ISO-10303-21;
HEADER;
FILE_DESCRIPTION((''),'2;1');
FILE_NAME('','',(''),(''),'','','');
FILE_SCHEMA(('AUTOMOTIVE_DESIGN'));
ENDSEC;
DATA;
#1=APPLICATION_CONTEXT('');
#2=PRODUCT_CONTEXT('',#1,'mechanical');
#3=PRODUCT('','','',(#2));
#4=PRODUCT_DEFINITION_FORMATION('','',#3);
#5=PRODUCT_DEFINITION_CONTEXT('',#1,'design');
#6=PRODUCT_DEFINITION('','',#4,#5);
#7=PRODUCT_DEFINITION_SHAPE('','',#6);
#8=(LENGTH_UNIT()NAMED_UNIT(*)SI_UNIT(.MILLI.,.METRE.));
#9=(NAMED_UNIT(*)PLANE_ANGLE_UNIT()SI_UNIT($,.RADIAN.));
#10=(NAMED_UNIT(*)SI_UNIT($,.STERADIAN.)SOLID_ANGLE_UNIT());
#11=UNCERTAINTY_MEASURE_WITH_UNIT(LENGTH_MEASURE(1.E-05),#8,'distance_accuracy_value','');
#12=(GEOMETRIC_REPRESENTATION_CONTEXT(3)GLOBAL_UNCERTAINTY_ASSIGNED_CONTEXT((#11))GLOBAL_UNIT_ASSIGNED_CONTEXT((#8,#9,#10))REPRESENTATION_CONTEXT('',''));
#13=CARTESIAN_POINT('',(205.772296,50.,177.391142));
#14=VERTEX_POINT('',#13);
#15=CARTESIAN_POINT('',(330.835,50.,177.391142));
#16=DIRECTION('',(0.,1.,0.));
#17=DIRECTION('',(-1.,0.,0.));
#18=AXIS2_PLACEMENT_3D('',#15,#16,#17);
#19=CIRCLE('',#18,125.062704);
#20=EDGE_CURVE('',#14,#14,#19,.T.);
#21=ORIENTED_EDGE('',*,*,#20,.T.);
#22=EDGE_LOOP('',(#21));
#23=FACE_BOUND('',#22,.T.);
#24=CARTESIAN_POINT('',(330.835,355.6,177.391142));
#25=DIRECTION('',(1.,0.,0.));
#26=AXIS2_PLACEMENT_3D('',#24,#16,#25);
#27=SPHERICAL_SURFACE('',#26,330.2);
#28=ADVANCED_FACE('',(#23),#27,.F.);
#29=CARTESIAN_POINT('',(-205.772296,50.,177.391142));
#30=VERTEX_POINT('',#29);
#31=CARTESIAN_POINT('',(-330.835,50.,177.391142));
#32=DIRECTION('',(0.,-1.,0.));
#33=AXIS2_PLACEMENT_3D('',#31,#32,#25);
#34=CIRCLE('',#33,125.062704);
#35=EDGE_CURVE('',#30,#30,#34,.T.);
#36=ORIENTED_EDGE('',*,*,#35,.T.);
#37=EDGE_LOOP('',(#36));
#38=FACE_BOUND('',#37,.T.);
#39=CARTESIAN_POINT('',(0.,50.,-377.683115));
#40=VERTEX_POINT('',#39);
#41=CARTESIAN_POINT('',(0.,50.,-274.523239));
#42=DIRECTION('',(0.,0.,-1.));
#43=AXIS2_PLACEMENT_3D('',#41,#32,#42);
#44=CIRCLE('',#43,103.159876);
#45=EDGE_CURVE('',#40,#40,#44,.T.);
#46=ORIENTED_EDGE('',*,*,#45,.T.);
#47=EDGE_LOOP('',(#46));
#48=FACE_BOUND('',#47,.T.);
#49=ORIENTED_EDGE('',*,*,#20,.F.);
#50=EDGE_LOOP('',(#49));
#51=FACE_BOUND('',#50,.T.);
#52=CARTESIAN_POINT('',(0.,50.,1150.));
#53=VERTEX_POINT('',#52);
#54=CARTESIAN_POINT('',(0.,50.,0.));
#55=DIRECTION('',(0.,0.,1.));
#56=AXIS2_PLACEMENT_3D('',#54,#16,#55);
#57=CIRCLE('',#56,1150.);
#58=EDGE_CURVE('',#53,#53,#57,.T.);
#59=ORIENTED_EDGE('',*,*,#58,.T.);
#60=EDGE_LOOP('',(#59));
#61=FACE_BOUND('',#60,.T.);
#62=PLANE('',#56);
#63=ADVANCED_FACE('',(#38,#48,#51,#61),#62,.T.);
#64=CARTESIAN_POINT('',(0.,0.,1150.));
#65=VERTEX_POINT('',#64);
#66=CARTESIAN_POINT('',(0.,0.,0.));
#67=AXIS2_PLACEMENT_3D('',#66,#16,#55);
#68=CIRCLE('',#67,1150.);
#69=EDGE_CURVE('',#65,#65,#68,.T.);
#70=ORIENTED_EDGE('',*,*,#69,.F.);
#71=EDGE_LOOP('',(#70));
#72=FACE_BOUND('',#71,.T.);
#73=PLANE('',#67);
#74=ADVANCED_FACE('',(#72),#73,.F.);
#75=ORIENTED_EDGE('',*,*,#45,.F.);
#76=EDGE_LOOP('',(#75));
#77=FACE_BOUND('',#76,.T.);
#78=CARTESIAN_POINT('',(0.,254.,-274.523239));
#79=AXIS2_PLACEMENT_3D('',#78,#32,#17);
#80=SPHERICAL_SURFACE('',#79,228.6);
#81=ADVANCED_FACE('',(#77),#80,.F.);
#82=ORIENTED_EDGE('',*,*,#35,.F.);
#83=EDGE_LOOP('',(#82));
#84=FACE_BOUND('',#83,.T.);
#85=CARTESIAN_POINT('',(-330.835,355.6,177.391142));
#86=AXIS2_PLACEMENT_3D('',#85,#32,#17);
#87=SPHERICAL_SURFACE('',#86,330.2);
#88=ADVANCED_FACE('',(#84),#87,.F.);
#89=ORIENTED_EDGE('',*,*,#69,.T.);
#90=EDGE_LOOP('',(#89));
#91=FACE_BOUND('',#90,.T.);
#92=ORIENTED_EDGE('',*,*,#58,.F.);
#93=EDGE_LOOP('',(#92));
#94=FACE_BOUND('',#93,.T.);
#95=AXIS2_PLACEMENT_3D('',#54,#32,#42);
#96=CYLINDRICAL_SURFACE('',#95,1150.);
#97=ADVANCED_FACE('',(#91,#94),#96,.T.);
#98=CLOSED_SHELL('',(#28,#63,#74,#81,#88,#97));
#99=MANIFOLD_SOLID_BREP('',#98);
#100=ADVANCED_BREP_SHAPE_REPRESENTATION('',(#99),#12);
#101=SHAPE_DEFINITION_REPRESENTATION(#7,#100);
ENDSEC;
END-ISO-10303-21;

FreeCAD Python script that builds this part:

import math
import FreeCAD as App
import Part
import Sketcher

V = App.Vector
Q = App.Units.Quantity

doc = App.newDocument("Part")
body = doc.addObject("PartDesign::Body", "Body")

# Sketch on XZ plane
sketch1 = body.newObject("Sketcher::SketchObject", "Sketch")
sketch1.AttachmentSupport = (doc.getObject("XZ_Plane"), [""])
sketch1.MapMode = "FlatFace"
sketch1.addGeometry(Part.Circle(V(0, 0, 0), V(0, 0, 1), 1150), False)
sketch1.addConstraint([
    Sketcher.Constraint("Coincident", 0, 3, -1, 1),
    Sketcher.Constraint("Diameter", 0, Q("2300 mm")),
])
pad1 = body.newObject("PartDesign::Pad", "Pad")
pad1.Profile = sketch1
pad1.Length = 50
pad1.Reversed = True

# Sketch on XY plane
sketch2 = body.newObject("Sketcher::SketchObject", "Sketch001")
sketch2.AttachmentSupport = (doc.getObject("XY_Plane"), [""])
sketch2.MapMode = "FlatFace"
sketch2.AttachmentOffset = App.Placement(V(0, 0, 177.391142), App.Rotation())
sketch2.addGeometry([
    Part.LineSegment(V(455.9, 50, 0), V(457.6, 50, 0)),  # 0
    Part.LineSegment(V(457.6, 50, 0), V(457.6, 50.7, 0)),  # 1
    Part.ArcOfCircle(Part.Circle(V(330.8, 355.6, 0), V(0, 0, 1), 330.2), math.radians(-67.74), math.radians(-67.43)),  # 2
    Part.LineSegment(V(-205.8, 50, 0), V(-330.8, 50, 0)),  # 3
    Part.LineSegment(V(-330.8, 50, 0), V(-330.8, 25.4, 0)),  # 4
    Part.ArcOfCircle(Part.Circle(V(-330.8, 355.6, 0), V(0, 0, 1), 330.2), math.radians(-90), math.radians(-68)),  # 5
], False)
sketch2.addGeometry(Part.LineSegment(V(-330.8, 25.4, 0), V(-330.8, 355.6, 0)), True)  # axis
sketch2.addConstraint([
    Sketcher.Constraint("Coincident", 0, 2, 1, 1),
    Sketcher.Constraint("Coincident", 1, 2, 2, 2),
    Sketcher.Constraint("Coincident", 2, 1, 0, 1),
    Sketcher.Constraint("Coincident", 3, 2, 4, 1),
    Sketcher.Constraint("Coincident", 4, 2, 5, 1),
    Sketcher.Constraint("Coincident", 5, 2, 3, 1),
    Sketcher.Constraint("Horizontal", 0),
    Sketcher.Constraint("Vertical", 1),
    Sketcher.Constraint("Horizontal", 3),
    Sketcher.Constraint("Vertical", 4),
    Sketcher.Constraint("Vertical", 6),
    Sketcher.Constraint("Coincident", 6, 1, 4, 2),
    Sketcher.Constraint("Horizontal", 2, 1, 3, 2),
    Sketcher.Constraint("Horizontal", 2, 3, 6, 2),
    Sketcher.Constraint("Vertical", 5, 3, 3, 2),
    Sketcher.Constraint("Radius", 5, Q("330.2 mm")),
    Sketcher.Constraint("DistanceY", 4, 2, 4, 1, Q("24.6 mm")),
    Sketcher.Constraint("DistanceY", -1, 1, 0, 2, Q("50 mm")),
    Sketcher.Constraint("DistanceX", 5, 2, 2, 1, Q("661.67 mm")),
    Sketcher.Constraint("DistanceX", 5, 3, -1, 1, Q("330.835 mm")),
    Sketcher.Constraint("Radius", 2, Q("330.200012 mm")),
    Sketcher.Constraint("DistanceY", 1, 1, 1, 2, Q("0.696572 mm")),
    Sketcher.Constraint("DistanceY", 6, 1, 6, 2, Q("330.200011 mm")),
])
groove = body.newObject("PartDesign::Groove", "Groove")
groove.Profile = sketch2
groove.ReferenceAxis = (sketch2, ["Axis0"])
groove.Angle = 360

# Sketch on XY plane
sketch3 = body.newObject("Sketcher::SketchObject", "Sketch002")
sketch3.AttachmentSupport = (doc.getObject("XY_Plane"), [""])
sketch3.MapMode = "FlatFace"
sketch3.AttachmentOffset = App.Placement(V(0, 0, 177.391142), App.Rotation())
sketch3.addGeometry([
    Part.LineSegment(V(331, 25, 0), V(331, 50, 0)),
    Part.LineSegment(V(331, 50, 0), V(206, 50, 0)),
    Part.ArcOfCircle(Part.Circle(V(331, 356, 0), V(0, 0, 1), 330), math.radians(-112), math.radians(-90)),
], False)
sketch3.addGeometry(Part.LineSegment(V(331, 356, 0), V(331, 25, 0)), True)  # axis
sketch3.addConstraint([
    Sketcher.Constraint("Coincident", 0, 2, 1, 1),
    Sketcher.Constraint("Coincident", 1, 2, 2, 1),
    Sketcher.Constraint("Coincident", 2, 2, 0, 1),
    Sketcher.Constraint("Vertical", 0),
    Sketcher.Constraint("Horizontal", 1),
    Sketcher.Constraint("Vertical", 3),
    Sketcher.Constraint("Coincident", 3, 1, 2, 3),
    Sketcher.Constraint("Coincident", 3, 2, 2, 2),
    Sketcher.Constraint("Radius", 2, Q("330.2 mm")),
    Sketcher.Constraint("DistanceY", 0, 1, 0, 2, Q("24.6 mm")),
    Sketcher.Constraint("DistanceY", -1, 1, 0, 2, Q("50 mm")),
    Sketcher.Constraint("DistanceX", -1, 1, 2, 3, Q("330.835 mm")),
])
groove2 = body.newObject("PartDesign::Groove", "Groove001")
groove2.Profile = sketch3
groove2.ReferenceAxis = (sketch3, ["Axis0"])
groove2.Angle = 360

# Sketch on XY plane
sketch4 = body.newObject("Sketcher::SketchObject", "Sketch003")
sketch4.AttachmentSupport = (doc.getObject("XY_Plane"), [""])
sketch4.MapMode = "FlatFace"
sketch4.AttachmentOffset = App.Placement(V(0, 0, -274.523239), App.Rotation())
sketch4.addGeometry([
    Part.LineSegment(V(0, 50, 0), V(0, 25, 0)),
    Part.ArcOfCircle(Part.Circle(V(0, 254, 0), V(0, 0, 1), 229), math.radians(-90), math.radians(-63)),
    Part.LineSegment(V(103, 50, 0), V(0, 50, 0)),
], False)
sketch4.addConstraint([
    Sketcher.Constraint("Coincident", 0, 2, 1, 1),
    Sketcher.Constraint("Coincident", 1, 2, 2, 1),
    Sketcher.Constraint("Coincident", 2, 2, 0, 1),
    Sketcher.Constraint("Vertical", 0),
    Sketcher.Constraint("Horizontal", 2),
    Sketcher.Constraint("PointOnObject", 1, 3, -2),
    Sketcher.Constraint("PointOnObject", 0, 2, -2),
    Sketcher.Constraint("Radius", 1, Q("228.6 mm")),
    Sketcher.Constraint("DistanceY", 0, 2, 0, 1, Q("24.6 mm")),
    Sketcher.Constraint("DistanceY", -1, 1, 1, 3, Q("254 mm")),
])
groove3 = body.newObject("PartDesign::Groove", "Groove002")
groove3.Profile = sketch4
groove3.ReferenceAxis = (sketch4, ["V_Axis"])
groove3.Angle = 360

doc.recompute()
